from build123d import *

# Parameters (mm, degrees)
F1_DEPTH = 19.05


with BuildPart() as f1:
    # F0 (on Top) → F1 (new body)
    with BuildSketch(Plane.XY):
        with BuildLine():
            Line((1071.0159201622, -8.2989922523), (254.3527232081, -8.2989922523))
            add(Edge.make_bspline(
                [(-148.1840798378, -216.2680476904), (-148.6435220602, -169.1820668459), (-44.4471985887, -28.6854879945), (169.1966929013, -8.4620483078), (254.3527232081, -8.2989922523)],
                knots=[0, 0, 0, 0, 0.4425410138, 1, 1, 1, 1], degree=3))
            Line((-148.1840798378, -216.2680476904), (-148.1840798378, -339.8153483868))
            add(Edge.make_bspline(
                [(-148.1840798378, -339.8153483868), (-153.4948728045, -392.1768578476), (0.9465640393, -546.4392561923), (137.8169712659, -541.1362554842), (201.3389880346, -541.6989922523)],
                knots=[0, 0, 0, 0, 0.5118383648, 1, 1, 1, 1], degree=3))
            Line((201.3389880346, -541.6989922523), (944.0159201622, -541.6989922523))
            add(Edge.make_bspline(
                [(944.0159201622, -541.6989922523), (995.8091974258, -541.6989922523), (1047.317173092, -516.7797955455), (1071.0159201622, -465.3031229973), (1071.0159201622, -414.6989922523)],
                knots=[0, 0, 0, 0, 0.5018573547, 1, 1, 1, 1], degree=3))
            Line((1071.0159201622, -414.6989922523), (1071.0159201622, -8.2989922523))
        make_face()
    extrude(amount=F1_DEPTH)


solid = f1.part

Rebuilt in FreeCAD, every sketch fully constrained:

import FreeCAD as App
import Part
import Sketcher
from FreeCAD import Vector
Q = App.Units.Quantity

doc = App.newDocument("Part")
body = doc.addObject("PartDesign::Body", "Body")

sketch1 = body.newObject("Sketcher::SketchObject", "Sketch")
sketch1.AttachmentSupport = (doc.getObject("XY_Plane"), [""])
sketch1.MapMode = "FlatFace"
sketch1.addGeometry(Part.LineSegment(Vector(1071.01592, -8.298992, 0), Vector(254.352723, -8.298992, 0)), False)
sketch1.addGeometry(Part.BSplineCurve([Vector(-148.18408, -216.268048, 0), Vector(-148.643522, -169.182067, 0), Vector(-44.447199, -28.685488, 0), Vector(169.196693, -8.462048, 0), Vector(254.352723, -8.298992, 0)], [4, 1, 4], [0, 0.442541014, 1], False, 3, [1, 1, 1, 1, 1], False), False)
sketch1.addGeometry(Part.LineSegment(Vector(-148.18408, -216.268048, 0), Vector(-148.18408, -339.815348, 0)), False)
sketch1.addGeometry(Part.BSplineCurve([Vector(-148.18408, -339.815348, 0), Vector(-153.494873, -392.176858, 0), Vector(0.946564, -546.439256, 0), Vector(137.816971, -541.136255, 0), Vector(201.338988, -541.698992, 0)], [4, 1, 4], [0, 0.511838365, 1], False, 3, [1, 1, 1, 1, 1], False), False)
sketch1.addGeometry(Part.LineSegment(Vector(201.338988, -541.698992, 0), Vector(944.01592, -541.698992, 0)), False)
sketch1.addGeometry(Part.BSplineCurve([Vector(944.01592, -541.698992, 0), Vector(995.809197, -541.698992, 0), Vector(1047.317173, -516.779796, 0), Vector(1071.01592, -465.303123, 0), Vector(1071.01592, -414.698992, 0)], [4, 1, 4], [0, 0.501857355, 1], False, 3, [1, 1, 1, 1, 1], False), False)
sketch1.addGeometry(Part.LineSegment(Vector(1071.01592, -414.698992, 0), Vector(1071.01592, -8.298992, 0)), False)
sketch1.addConstraint(Sketcher.Constraint("Block", 1))
sketch1.addConstraint(Sketcher.Constraint("Block", 3))
sketch1.addConstraint(Sketcher.Constraint("Block", 5))
sketch1.addConstraint(Sketcher.Constraint("Coincident", 0, 2, 1, 2))
sketch1.addConstraint(Sketcher.Constraint("Coincident", 1, 1, 2, 1))
sketch1.addConstraint(Sketcher.Constraint("Coincident", 2, 2, 3, 1))
sketch1.addConstraint(Sketcher.Constraint("Coincident", 3, 2, 4, 1))
sketch1.addConstraint(Sketcher.Constraint("Coincident", 4, 2, 5, 1))
sketch1.addConstraint(Sketcher.Constraint("Coincident", 5, 2, 6, 1))
sketch1.addConstraint(Sketcher.Constraint("Coincident", 6, 2, 0, 1))
sketch1.addConstraint(Sketcher.Constraint("Horizontal", 0))
sketch1.addConstraint(Sketcher.Constraint("Vertical", 6))
pad1 = body.newObject("PartDesign::Pad", "Pad")
pad1.Profile = sketch1
pad1.Length = Q("0.75 in")

doc.recompute()
